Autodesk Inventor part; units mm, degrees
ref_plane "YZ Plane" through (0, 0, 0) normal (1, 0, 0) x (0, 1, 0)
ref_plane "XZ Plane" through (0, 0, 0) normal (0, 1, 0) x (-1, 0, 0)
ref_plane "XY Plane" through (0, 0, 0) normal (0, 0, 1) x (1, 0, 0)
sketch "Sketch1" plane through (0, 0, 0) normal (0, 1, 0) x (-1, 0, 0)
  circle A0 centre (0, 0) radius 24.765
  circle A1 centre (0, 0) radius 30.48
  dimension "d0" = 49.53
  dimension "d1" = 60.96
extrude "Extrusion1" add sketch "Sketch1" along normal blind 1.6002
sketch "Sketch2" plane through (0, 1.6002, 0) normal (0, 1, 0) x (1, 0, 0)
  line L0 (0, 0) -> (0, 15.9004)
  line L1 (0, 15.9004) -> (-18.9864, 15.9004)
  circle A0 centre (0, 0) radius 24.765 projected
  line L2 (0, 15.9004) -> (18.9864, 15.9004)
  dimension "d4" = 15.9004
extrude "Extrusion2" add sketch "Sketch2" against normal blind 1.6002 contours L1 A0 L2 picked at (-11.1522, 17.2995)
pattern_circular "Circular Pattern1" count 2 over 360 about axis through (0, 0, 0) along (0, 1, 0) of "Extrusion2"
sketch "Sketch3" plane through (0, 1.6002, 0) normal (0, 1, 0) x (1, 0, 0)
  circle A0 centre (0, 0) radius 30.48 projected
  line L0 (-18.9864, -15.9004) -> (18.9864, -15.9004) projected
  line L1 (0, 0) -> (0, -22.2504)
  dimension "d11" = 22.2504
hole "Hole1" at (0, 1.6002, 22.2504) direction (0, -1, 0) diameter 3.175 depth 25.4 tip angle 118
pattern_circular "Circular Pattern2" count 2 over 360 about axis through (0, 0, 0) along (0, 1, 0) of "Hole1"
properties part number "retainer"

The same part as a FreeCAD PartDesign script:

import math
import FreeCAD as App
import Part
import Sketcher
from FreeCAD import Vector
Q = App.Units.Quantity

doc = App.newDocument("Part")
body = doc.addObject("PartDesign::Body", "Body")

# Sketch on XZ plane
sketch1 = body.newObject("Sketcher::SketchObject", "Sketch")
sketch1.AttachmentSupport = (doc.getObject("XZ_Plane"), [""])
sketch1.MapMode = "FlatFace"
sketch1.addGeometry(Part.Circle(Vector(0, 0, 0), Vector(0, 0, 1), 30.48), False)
sketch1.addGeometry(Part.Circle(Vector(0, 0, 0), Vector(0, 0, 1), 24.765), False)
sketch1.addConstraint(Sketcher.Constraint("Coincident", 0, 3, -1, 1))
sketch1.addConstraint(Sketcher.Constraint("Coincident", 1, 3, -1, 1))
sketch1.addConstraint(Sketcher.Constraint("Diameter", 0, Q("2.4 in")))
sketch1.addConstraint(Sketcher.Constraint("Diameter", 1, Q("1.95 in")))
pad1 = body.newObject("PartDesign::Pad", "Pad")
pad1.Profile = sketch1
pad1.Length = Q("0.063 in")
pad1.Reversed = True

# Sketch on XZ plane
sketch2 = body.newObject("Sketcher::SketchObject", "Sketch001")
sketch2.AttachmentSupport = (doc.getObject("XZ_Plane"), [""])
sketch2.MapMode = "FlatFace"
sketch2.AttachmentOffset = App.Placement(Vector(0, 0, -0.063 * 25.4), App.Rotation())
sketch2.addGeometry(Part.LineSegment(Vector(-18.9864, -15.9004, 0), Vector(18.9864, -15.9004, 0)), False)
sketch2.addGeometry(Part.ArcOfCircle(Part.Circle(Vector(0, 0, 0), Vector(0, 0, 1), 24.765), math.radians(-140.055085), math.radians(-39.944915)), False)
sketch2.addConstraint(Sketcher.Constraint("Coincident", 0, 1, 1, 1))
sketch2.addConstraint(Sketcher.Constraint("Coincident", 1, 2, 0, 2))
sketch2.addConstraint(Sketcher.Constraint("Horizontal", 0))
sketch2.addConstraint(Sketcher.Constraint("Coincident", 1, 3, -1, 1))
sketch2.addConstraint(Sketcher.Constraint("DistanceY", 0, 1, -1, 1, Q("0.626 in")))
sketch2.addConstraint(Sketcher.Constraint("Radius", 1, Q("0.975 in")))
pad2 = body.newObject("PartDesign::Pad", "Pad001")
pad2.Profile = sketch2
pad2.Length = Q("0.063 in")
doc.recompute()

polarpattern = body.newObject("PartDesign::PolarPattern", "PolarPattern")
polarpattern.Originals = [pad2]
polarpattern.Axis = (doc.getObject("Y_Axis"), [""])
polarpattern.Angle = 360
polarpattern.Occurrences = 2
body.Tip = polarpattern

# Sketch on XZ plane
sketch3 = body.newObject("Sketcher::SketchObject", "Sketch002")
sketch3.AttachmentSupport = (doc.getObject("XZ_Plane"), [""])
sketch3.MapMode = "FlatFace"
sketch3.AttachmentOffset = App.Placement(Vector(0, 0, -0.063 * 25.4), App.Rotation())
sketch3.addGeometry(Part.Circle(Vector(0, 22.2504, 0), Vector(0, 0, 1), 1.5875), False)
sketch3.addConstraint(Sketcher.Constraint("PointOnObject", 0, 3, -2))
sketch3.addConstraint(Sketcher.Constraint("Diameter", 0, Q("0.125 in")))
sketch3.addConstraint(Sketcher.Constraint("DistanceY", -1, 1, 0, 3, Q("0.876 in")))
doc.recompute()
hole = body.newObject("PartDesign::Hole", "Hole")
hole.Profile = sketch3
hole.ThreadType = "None"
hole.Diameter = Q("0.125 in")
hole.DepthType = "Dimension"
hole.Depth = Q("1 in")
hole.DrillPoint = "Angled"
hole.DrillPointAngle = 118
hole.Reversed = True
doc.recompute()

polarpattern2 = body.newObject("PartDesign::PolarPattern", "PolarPattern001")
polarpattern2.Originals = [hole]
polarpattern2.Axis = (doc.getObject("Y_Axis"), [""])
polarpattern2.Angle = 360
polarpattern2.Occurrences = 2
body.Tip = polarpattern2

doc.recompute()
